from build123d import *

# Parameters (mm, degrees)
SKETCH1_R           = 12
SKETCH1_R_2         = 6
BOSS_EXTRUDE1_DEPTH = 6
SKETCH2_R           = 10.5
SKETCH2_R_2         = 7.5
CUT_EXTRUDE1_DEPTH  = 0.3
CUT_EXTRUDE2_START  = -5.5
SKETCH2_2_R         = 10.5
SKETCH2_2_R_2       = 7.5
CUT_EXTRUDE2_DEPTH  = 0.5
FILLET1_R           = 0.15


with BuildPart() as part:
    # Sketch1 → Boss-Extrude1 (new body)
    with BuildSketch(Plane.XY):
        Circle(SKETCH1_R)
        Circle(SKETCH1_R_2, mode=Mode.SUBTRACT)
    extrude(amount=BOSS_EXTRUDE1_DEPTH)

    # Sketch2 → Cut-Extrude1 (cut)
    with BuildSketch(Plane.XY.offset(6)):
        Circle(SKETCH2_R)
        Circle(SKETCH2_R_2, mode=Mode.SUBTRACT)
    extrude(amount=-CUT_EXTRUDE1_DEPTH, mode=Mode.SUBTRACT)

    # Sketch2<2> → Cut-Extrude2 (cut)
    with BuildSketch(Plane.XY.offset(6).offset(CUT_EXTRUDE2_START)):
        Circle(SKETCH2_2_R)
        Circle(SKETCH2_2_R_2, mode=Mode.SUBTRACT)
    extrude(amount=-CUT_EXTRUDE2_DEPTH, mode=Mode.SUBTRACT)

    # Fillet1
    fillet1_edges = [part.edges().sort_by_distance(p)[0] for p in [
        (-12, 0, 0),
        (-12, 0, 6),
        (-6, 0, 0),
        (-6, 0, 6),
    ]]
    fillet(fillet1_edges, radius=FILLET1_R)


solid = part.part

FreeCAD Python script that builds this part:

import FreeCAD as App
import Part
import Sketcher
from FreeCAD import Vector
Q = App.Units.Quantity


def edges_at(feature, points):
    """Names of the edges that pass closest to the given points."""
    edges = feature.Shape.Edges
    near = lambda p: min(range(len(edges)), key=lambda i: edges[i].distToShape(Part.Vertex(*p))[0])
    return sorted({f"Edge{near(p) + 1}" for p in points})

doc = App.newDocument("Part")
params = doc.addObject("Spreadsheet::Sheet", "Params")
for row, (alias, value) in enumerate([
    ("sketch1_diameter", "24 mm"),
    ("sketch1_diameter2", "12 mm"),
    ("pad1_length", "6 mm"),
    ("sketch2_diameter", "21 mm"),
    ("sketch2_diameter2", "15 mm"),
    ("pocket1_length", "0.3 mm"),
    ("sketch3_diameter", "21 mm"),
    ("sketch3_diameter2", "15 mm"),
    ("pocket2_length", "0.5 mm"),
    ("fillet_radius", "0.15 mm"),
], start=1):
    params.set(f"A{row}", alias)
    params.set(f"B{row}", "=" + value)
    params.setAlias(f"B{row}", alias)

body = doc.addObject("PartDesign::Body", "Body")

# Sketch on XY plane
sketch1 = body.newObject("Sketcher::SketchObject", "Sketch")
sketch1.AttachmentSupport = (doc.getObject("XY_Plane"), [""])
sketch1.MapMode = "FlatFace"
sketch1.addGeometry(Part.Circle(Vector(0, 0, 0), Vector(0, 0, 1), 12), False)
sketch1.addGeometry(Part.Circle(Vector(0, 0, 0), Vector(0, 0, 1), 6), False)
sketch1.addConstraint(Sketcher.Constraint("Coincident", 0, 3, -1, 1))
sketch1.addConstraint(Sketcher.Constraint("Coincident", 1, 3, -1, 1))
sketch1.addConstraint(Sketcher.Constraint("Diameter", 0, Q("24 mm")))
sketch1.addConstraint(Sketcher.Constraint("Diameter", 1, Q("12 mm")))
sketch1.setExpression("Constraints[2]", "Params.sketch1_diameter")
sketch1.setExpression("Constraints[3]", "Params.sketch1_diameter2")
pad1 = body.newObject("PartDesign::Pad", "Pad")
pad1.Profile = sketch1
pad1.setExpression("Length", "Params.pad1_length")

# Sketch on XY plane
sketch2 = body.newObject("Sketcher::SketchObject", "Sketch001")
sketch2.AttachmentSupport = (doc.getObject("XY_Plane"), [""])
sketch2.MapMode = "FlatFace"
sketch2.AttachmentOffset = App.Placement(Vector(0, 0, 6), App.Rotation())
sketch2.addGeometry(Part.Circle(Vector(0, 0, 0), Vector(0, 0, 1), 10.5), False)
sketch2.addGeometry(Part.Circle(Vector(0, 0, 0), Vector(0, 0, 1), 7.5), False)
sketch2.addConstraint(Sketcher.Constraint("Coincident", 0, 3, -1, 1))
sketch2.addConstraint(Sketcher.Constraint("Coincident", 1, 3, -1, 1))
sketch2.addConstraint(Sketcher.Constraint("Diameter", 0, Q("21 mm")))
sketch2.addConstraint(Sketcher.Constraint("Diameter", 1, Q("15 mm")))
sketch2.setExpression("Constraints[2]", "Params.sketch2_diameter")
sketch2.setExpression("Constraints[3]", "Params.sketch2_diameter2")
pocket1 = body.newObject("PartDesign::Pocket", "Pocket")
pocket1.Profile = sketch2
pocket1.setExpression("Length", "Params.pocket1_length")

# Sketch on XY plane
sketch3 = body.newObject("Sketcher::SketchObject", "Sketch002")
sketch3.AttachmentSupport = (doc.getObject("XY_Plane"), [""])
sketch3.MapMode = "FlatFace"
sketch3.AttachmentOffset = App.Placement(Vector(0, 0, 0.5), App.Rotation())
sketch3.addGeometry(Part.Circle(Vector(0, 0, 0), Vector(0, 0, 1), 10.5), False)
sketch3.addGeometry(Part.Circle(Vector(0, 0, 0), Vector(0, 0, 1), 7.5), False)
sketch3.addConstraint(Sketcher.Constraint("Coincident", 0, 3, -1, 1))
sketch3.addConstraint(Sketcher.Constraint("Coincident", 1, 3, -1, 1))
sketch3.addConstraint(Sketcher.Constraint("Diameter", 0, Q("21 mm")))
sketch3.addConstraint(Sketcher.Constraint("Diameter", 1, Q("15 mm")))
sketch3.setExpression("Constraints[2]", "Params.sketch3_diameter")
sketch3.setExpression("Constraints[3]", "Params.sketch3_diameter2")
pocket2 = body.newObject("PartDesign::Pocket", "Pocket001")
pocket2.Profile = sketch3
pocket2.setExpression("Length", "Params.pocket2_length")
doc.recompute()

fillet = body.newObject("PartDesign::Fillet", "Fillet")
fillet.Base = (pocket2, edges_at(pocket2, [
    (-12, 0, 0),
    (-12, 0, 6),
    (-6, 0, 0),
    (-6, 0, 6),
]))
fillet.setExpression("Radius", "Params.fillet_radius")

doc.recompute()
